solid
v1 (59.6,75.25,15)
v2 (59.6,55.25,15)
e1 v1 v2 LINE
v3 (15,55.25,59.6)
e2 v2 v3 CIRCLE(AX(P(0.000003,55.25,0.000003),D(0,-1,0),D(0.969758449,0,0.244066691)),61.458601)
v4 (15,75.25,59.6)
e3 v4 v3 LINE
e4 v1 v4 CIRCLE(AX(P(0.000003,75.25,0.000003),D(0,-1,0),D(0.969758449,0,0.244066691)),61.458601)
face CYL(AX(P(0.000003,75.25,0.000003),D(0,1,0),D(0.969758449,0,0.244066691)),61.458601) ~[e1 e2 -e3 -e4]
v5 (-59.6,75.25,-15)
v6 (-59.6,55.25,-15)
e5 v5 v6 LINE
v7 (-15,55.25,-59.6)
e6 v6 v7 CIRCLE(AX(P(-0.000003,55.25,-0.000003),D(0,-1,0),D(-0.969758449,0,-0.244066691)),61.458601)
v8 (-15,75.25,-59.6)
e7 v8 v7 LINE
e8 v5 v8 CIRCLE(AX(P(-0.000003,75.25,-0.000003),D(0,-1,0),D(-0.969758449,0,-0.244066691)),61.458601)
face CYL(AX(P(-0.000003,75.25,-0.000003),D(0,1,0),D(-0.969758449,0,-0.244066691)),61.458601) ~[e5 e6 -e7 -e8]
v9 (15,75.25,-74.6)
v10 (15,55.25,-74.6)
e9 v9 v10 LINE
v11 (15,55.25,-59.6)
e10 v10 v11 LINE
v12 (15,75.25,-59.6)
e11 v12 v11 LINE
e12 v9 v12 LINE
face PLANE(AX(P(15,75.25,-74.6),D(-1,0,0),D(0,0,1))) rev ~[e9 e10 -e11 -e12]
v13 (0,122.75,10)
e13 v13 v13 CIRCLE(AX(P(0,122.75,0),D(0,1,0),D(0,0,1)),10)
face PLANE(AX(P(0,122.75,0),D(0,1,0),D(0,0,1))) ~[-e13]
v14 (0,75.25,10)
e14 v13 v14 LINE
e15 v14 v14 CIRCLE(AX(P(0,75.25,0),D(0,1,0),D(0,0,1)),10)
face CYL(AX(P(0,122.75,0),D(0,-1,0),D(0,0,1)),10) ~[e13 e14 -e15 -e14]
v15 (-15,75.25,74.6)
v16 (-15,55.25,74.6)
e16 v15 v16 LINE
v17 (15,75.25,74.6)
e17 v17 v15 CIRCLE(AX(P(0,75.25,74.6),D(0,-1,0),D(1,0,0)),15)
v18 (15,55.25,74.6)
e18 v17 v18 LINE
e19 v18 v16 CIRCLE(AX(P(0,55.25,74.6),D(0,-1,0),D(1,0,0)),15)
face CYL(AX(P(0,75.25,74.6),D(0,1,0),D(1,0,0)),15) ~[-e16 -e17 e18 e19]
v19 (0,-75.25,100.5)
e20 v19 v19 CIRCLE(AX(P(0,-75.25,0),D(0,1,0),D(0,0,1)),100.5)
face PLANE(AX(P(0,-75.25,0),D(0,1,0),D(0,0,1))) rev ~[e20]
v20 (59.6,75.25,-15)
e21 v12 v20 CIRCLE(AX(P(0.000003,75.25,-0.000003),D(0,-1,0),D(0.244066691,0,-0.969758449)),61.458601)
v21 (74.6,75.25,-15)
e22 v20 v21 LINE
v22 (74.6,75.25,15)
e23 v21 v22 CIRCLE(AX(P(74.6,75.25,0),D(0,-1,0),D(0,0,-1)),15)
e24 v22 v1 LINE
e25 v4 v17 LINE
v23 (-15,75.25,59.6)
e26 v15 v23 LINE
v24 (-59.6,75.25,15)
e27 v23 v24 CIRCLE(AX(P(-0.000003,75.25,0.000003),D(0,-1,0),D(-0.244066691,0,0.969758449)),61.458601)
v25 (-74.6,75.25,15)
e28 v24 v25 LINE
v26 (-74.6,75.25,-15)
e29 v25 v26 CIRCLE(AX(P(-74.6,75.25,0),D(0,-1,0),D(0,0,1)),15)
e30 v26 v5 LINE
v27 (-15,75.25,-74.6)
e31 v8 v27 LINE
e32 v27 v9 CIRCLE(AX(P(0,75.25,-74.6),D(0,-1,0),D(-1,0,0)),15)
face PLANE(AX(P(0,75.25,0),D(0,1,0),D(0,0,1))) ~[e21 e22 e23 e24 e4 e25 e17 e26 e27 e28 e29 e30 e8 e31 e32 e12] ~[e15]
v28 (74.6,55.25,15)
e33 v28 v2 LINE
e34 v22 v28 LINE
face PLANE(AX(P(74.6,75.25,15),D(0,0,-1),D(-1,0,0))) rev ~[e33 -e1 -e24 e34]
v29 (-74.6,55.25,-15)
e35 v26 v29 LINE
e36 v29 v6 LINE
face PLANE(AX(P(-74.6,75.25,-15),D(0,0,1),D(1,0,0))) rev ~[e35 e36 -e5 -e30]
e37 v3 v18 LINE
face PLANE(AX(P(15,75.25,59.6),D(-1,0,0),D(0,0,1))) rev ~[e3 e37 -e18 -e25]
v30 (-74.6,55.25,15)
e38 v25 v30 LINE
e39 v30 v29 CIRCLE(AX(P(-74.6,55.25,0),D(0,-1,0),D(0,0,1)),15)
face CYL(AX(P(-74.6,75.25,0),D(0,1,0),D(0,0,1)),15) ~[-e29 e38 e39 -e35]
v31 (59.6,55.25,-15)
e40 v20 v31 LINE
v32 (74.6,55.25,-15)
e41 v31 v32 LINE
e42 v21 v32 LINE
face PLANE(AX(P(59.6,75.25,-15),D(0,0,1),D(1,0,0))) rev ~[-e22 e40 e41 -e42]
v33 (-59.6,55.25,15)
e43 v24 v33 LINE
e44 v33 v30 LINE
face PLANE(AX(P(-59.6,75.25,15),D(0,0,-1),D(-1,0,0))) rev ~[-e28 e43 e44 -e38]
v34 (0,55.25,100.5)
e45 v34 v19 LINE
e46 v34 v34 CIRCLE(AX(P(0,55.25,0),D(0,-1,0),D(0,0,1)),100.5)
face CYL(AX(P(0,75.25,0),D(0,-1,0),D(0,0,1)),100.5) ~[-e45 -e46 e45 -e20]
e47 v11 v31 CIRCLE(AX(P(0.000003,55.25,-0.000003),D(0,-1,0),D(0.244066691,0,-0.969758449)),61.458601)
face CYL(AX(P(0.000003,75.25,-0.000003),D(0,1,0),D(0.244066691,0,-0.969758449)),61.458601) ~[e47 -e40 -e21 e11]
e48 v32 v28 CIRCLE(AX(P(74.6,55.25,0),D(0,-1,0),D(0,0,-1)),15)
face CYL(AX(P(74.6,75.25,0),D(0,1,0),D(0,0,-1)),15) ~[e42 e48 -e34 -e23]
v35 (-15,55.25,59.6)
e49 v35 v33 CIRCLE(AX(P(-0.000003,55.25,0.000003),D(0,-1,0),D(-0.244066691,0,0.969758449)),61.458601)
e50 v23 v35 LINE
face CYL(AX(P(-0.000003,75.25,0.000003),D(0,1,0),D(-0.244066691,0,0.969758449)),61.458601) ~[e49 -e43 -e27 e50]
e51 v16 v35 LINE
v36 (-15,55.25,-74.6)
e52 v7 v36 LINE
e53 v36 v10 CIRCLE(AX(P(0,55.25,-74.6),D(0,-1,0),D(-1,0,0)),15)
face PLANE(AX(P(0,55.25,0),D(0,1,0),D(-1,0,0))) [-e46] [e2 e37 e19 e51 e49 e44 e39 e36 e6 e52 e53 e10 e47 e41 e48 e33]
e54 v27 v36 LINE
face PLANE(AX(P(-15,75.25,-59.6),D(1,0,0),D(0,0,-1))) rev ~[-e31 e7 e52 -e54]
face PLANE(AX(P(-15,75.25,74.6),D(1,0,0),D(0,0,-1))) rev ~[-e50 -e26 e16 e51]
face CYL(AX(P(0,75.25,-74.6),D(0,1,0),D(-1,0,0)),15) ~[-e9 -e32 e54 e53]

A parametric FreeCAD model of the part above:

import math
import FreeCAD as App
import Part
import Sketcher

V = App.Vector

doc = App.newDocument("Part")
body = doc.addObject("PartDesign::Body", "Body")

sketch1 = body.newObject("Sketcher::SketchObject", "Sketch")
sketch1.AttachmentSupport = (doc.getObject("YZ_Plane"), [""])
sketch1.MapMode = "FlatFace"
sketch1.addGeometry([
    Part.LineSegment(V(-75, 100, 0), V(-75, 0, 0)),
    Part.LineSegment(V(-75, 0, 0), V(123, 0, 0)),
    Part.LineSegment(V(123, 0, 0), V(123, 10, 0)),
    Part.LineSegment(V(123, 10, 0), V(75, 10, 0)),
    Part.LineSegment(V(75, 10, 0), V(75, 100, 0)),
    Part.LineSegment(V(75, 100, 0), V(-75, 100, 0)),
], False)
sketch1.addConstraint([
    Sketcher.Constraint("Coincident", 0, 2, 1, 1),
    Sketcher.Constraint("Coincident", 1, 2, 2, 1),
    Sketcher.Constraint("Coincident", 2, 2, 3, 1),
    Sketcher.Constraint("Coincident", 3, 2, 4, 1),
    Sketcher.Constraint("Coincident", 4, 2, 5, 1),
    Sketcher.Constraint("Coincident", 5, 2, 0, 1),
    Sketcher.Constraint("Vertical", 0),
    Sketcher.Constraint("Horizontal", 1),
    Sketcher.Constraint("Vertical", 2),
    Sketcher.Constraint("Horizontal", 3),
    Sketcher.Constraint("Vertical", 4),
    Sketcher.Constraint("Horizontal", 5),
    Sketcher.Constraint("PointOnObject", 0, 2, -1),
    Sketcher.Constraint("DistanceX", 1, 1, 1, 2, 198.0),
    Sketcher.Constraint("DistanceY", 2, 1, 2, 2, 10.0),
    Sketcher.Constraint("DistanceX", 3, 2, 3, 1, 47.5),
    Sketcher.Constraint("DistanceY", 0, 2, 0, 1, 100.5),
    Sketcher.Constraint("DistanceX", 0, 2, -1, 1, 75.25),
])
revolution = body.newObject("PartDesign::Revolution", "Revolution")
revolution.Profile = sketch1
revolution.ReferenceAxis = (sketch1, ["H_Axis"])
revolution.Angle = 360

sketch2 = body.newObject("Sketcher::SketchObject", "Sketch001")
sketch2.AttachmentSupport = (doc.getObject("XZ_Plane"), [""])
sketch2.MapMode = "FlatFace"
sketch2.AttachmentOffset = App.Placement(V(0, 0, -75.25), App.Rotation())
sketch2.addGeometry([
    Part.Circle(V(0, 0, 0), V(0, 0, 1), 115),
    Part.LineSegment(V(15, 60, 0), V(15, 75, 0)),
    Part.ArcOfCircle(Part.Circle(V(0, 75, 0), V(0, 0, 1), 15), math.radians(0), math.radians(180)),
    Part.LineSegment(V(-15, 75, 0), V(-15, 60, 0)),
    Part.ArcOfCircle(Part.Circle(V(0, 0, 0), V(0, 0, 1), 61), math.radians(104), math.radians(166)),
    Part.LineSegment(V(-60, 15, 0), V(-75, 15, 0)),
    Part.ArcOfCircle(Part.Circle(V(-75, 0, 0), V(0, 0, 1), 15), math.radians(90), math.radians(270)),
    Part.LineSegment(V(-75, -15, 0), V(-60, -15, 0)),
    Part.ArcOfCircle(Part.Circle(V(0, 0, 0), V(0, 0, 1), 61), math.radians(-166), math.radians(-104)),
    Part.LineSegment(V(-15, -60, 0), V(-15, -75, 0)),
    Part.ArcOfCircle(Part.Circle(V(0, -75, 0), V(0, 0, 1), 15), math.radians(180), math.radians(360)),
    Part.LineSegment(V(15, -75, 0), V(15, -60, 0)),
    Part.ArcOfCircle(Part.Circle(V(0, 0, 0), V(0, 0, 1), 61), math.radians(-76), math.radians(-14)),
    Part.LineSegment(V(60, -15, 0), V(75, -15, 0)),
    Part.ArcOfCircle(Part.Circle(V(75, 0, 0), V(0, 0, 1), 15), math.radians(-90), math.radians(90)),
    Part.LineSegment(V(75, 15, 0), V(60, 15, 0)),
    Part.ArcOfCircle(Part.Circle(V(0, 0, 0), V(0, 0, 1), 61), math.radians(14), math.radians(76)),
], False)
sketch2.addConstraint([
    Sketcher.Constraint("Tangent", 1, 2, 2, 1),
    Sketcher.Constraint("Tangent", 2, 2, 3, 1),
    Sketcher.Constraint("Coincident", 3, 2, 4, 1),
    Sketcher.Constraint("Coincident", 4, 2, 5, 1),
    Sketcher.Constraint("Tangent", 5, 2, 6, 1),
    Sketcher.Constraint("Tangent", 6, 2, 7, 1),
    Sketcher.Constraint("Coincident", 7, 2, 8, 1),
    Sketcher.Constraint("Coincident", 8, 2, 9, 1),
    Sketcher.Constraint("Tangent", 9, 2, 10, 1),
    Sketcher.Constraint("Tangent", 10, 2, 11, 1),
    Sketcher.Constraint("Coincident", 11, 2, 12, 1),
    Sketcher.Constraint("Coincident", 12, 2, 13, 1),
    Sketcher.Constraint("Tangent", 13, 2, 14, 1),
    Sketcher.Constraint("Tangent", 14, 2, 15, 1),
    Sketcher.Constraint("Coincident", 15, 2, 16, 1),
    Sketcher.Constraint("Coincident", 16, 2, 1, 1),
    Sketcher.Constraint("Vertical", 1),
    Sketcher.Constraint("Vertical", 3),
    Sketcher.Constraint("Horizontal", 5),
    Sketcher.Constraint("Horizontal", 7),
    Sketcher.Constraint("Vertical", 9),
    Sketcher.Constraint("Vertical", 11),
    Sketcher.Constraint("Horizontal", 13),
    Sketcher.Constraint("Horizontal", 15),
    Sketcher.Constraint("Coincident", 0, 3, -1, 1),
    Sketcher.Constraint("Coincident", 4, 3, -1, 1),
    Sketcher.Constraint("Coincident", 8, 3, -1, 1),
    Sketcher.Constraint("Coincident", 12, 3, -1, 1),
    Sketcher.Constraint("Coincident", 16, 3, -1, 1),
    Sketcher.Constraint("Equal", 2, 6),
    Sketcher.Constraint("Equal", 4, 8),
    Sketcher.Constraint("Equal", 6, 10),
    Sketcher.Constraint("Equal", 8, 12),
    Sketcher.Constraint("Equal", 10, 14),
    Sketcher.Constraint("Equal", 12, 16),
    Sketcher.Constraint("Symmetric", 2, 3, 10, 3, -1, 1),
    Sketcher.Constraint("Symmetric", 6, 3, 14, 3, -1, 1),
    Sketcher.Constraint("PointOnObject", 2, 3, -2),
    Sketcher.Constraint("PointOnObject", 6, 3, -1),
    Sketcher.Constraint("Equal", 15, 1),
    Sketcher.Constraint("Diameter", 0, 230.0),
    Sketcher.Constraint("Radius", 2, 15.0),
    Sketcher.Constraint("DistanceX", 5, 2, 5, 1, 15.0),
    Sketcher.Constraint("DistanceY", -1, 1, 2, 3, 74.6),
])
pocket1 = body.newObject("PartDesign::Pocket", "Pocket")
pocket1.Profile = sketch2
pocket1.Length = 20
pocket1.Reversed = True

doc.recompute()
